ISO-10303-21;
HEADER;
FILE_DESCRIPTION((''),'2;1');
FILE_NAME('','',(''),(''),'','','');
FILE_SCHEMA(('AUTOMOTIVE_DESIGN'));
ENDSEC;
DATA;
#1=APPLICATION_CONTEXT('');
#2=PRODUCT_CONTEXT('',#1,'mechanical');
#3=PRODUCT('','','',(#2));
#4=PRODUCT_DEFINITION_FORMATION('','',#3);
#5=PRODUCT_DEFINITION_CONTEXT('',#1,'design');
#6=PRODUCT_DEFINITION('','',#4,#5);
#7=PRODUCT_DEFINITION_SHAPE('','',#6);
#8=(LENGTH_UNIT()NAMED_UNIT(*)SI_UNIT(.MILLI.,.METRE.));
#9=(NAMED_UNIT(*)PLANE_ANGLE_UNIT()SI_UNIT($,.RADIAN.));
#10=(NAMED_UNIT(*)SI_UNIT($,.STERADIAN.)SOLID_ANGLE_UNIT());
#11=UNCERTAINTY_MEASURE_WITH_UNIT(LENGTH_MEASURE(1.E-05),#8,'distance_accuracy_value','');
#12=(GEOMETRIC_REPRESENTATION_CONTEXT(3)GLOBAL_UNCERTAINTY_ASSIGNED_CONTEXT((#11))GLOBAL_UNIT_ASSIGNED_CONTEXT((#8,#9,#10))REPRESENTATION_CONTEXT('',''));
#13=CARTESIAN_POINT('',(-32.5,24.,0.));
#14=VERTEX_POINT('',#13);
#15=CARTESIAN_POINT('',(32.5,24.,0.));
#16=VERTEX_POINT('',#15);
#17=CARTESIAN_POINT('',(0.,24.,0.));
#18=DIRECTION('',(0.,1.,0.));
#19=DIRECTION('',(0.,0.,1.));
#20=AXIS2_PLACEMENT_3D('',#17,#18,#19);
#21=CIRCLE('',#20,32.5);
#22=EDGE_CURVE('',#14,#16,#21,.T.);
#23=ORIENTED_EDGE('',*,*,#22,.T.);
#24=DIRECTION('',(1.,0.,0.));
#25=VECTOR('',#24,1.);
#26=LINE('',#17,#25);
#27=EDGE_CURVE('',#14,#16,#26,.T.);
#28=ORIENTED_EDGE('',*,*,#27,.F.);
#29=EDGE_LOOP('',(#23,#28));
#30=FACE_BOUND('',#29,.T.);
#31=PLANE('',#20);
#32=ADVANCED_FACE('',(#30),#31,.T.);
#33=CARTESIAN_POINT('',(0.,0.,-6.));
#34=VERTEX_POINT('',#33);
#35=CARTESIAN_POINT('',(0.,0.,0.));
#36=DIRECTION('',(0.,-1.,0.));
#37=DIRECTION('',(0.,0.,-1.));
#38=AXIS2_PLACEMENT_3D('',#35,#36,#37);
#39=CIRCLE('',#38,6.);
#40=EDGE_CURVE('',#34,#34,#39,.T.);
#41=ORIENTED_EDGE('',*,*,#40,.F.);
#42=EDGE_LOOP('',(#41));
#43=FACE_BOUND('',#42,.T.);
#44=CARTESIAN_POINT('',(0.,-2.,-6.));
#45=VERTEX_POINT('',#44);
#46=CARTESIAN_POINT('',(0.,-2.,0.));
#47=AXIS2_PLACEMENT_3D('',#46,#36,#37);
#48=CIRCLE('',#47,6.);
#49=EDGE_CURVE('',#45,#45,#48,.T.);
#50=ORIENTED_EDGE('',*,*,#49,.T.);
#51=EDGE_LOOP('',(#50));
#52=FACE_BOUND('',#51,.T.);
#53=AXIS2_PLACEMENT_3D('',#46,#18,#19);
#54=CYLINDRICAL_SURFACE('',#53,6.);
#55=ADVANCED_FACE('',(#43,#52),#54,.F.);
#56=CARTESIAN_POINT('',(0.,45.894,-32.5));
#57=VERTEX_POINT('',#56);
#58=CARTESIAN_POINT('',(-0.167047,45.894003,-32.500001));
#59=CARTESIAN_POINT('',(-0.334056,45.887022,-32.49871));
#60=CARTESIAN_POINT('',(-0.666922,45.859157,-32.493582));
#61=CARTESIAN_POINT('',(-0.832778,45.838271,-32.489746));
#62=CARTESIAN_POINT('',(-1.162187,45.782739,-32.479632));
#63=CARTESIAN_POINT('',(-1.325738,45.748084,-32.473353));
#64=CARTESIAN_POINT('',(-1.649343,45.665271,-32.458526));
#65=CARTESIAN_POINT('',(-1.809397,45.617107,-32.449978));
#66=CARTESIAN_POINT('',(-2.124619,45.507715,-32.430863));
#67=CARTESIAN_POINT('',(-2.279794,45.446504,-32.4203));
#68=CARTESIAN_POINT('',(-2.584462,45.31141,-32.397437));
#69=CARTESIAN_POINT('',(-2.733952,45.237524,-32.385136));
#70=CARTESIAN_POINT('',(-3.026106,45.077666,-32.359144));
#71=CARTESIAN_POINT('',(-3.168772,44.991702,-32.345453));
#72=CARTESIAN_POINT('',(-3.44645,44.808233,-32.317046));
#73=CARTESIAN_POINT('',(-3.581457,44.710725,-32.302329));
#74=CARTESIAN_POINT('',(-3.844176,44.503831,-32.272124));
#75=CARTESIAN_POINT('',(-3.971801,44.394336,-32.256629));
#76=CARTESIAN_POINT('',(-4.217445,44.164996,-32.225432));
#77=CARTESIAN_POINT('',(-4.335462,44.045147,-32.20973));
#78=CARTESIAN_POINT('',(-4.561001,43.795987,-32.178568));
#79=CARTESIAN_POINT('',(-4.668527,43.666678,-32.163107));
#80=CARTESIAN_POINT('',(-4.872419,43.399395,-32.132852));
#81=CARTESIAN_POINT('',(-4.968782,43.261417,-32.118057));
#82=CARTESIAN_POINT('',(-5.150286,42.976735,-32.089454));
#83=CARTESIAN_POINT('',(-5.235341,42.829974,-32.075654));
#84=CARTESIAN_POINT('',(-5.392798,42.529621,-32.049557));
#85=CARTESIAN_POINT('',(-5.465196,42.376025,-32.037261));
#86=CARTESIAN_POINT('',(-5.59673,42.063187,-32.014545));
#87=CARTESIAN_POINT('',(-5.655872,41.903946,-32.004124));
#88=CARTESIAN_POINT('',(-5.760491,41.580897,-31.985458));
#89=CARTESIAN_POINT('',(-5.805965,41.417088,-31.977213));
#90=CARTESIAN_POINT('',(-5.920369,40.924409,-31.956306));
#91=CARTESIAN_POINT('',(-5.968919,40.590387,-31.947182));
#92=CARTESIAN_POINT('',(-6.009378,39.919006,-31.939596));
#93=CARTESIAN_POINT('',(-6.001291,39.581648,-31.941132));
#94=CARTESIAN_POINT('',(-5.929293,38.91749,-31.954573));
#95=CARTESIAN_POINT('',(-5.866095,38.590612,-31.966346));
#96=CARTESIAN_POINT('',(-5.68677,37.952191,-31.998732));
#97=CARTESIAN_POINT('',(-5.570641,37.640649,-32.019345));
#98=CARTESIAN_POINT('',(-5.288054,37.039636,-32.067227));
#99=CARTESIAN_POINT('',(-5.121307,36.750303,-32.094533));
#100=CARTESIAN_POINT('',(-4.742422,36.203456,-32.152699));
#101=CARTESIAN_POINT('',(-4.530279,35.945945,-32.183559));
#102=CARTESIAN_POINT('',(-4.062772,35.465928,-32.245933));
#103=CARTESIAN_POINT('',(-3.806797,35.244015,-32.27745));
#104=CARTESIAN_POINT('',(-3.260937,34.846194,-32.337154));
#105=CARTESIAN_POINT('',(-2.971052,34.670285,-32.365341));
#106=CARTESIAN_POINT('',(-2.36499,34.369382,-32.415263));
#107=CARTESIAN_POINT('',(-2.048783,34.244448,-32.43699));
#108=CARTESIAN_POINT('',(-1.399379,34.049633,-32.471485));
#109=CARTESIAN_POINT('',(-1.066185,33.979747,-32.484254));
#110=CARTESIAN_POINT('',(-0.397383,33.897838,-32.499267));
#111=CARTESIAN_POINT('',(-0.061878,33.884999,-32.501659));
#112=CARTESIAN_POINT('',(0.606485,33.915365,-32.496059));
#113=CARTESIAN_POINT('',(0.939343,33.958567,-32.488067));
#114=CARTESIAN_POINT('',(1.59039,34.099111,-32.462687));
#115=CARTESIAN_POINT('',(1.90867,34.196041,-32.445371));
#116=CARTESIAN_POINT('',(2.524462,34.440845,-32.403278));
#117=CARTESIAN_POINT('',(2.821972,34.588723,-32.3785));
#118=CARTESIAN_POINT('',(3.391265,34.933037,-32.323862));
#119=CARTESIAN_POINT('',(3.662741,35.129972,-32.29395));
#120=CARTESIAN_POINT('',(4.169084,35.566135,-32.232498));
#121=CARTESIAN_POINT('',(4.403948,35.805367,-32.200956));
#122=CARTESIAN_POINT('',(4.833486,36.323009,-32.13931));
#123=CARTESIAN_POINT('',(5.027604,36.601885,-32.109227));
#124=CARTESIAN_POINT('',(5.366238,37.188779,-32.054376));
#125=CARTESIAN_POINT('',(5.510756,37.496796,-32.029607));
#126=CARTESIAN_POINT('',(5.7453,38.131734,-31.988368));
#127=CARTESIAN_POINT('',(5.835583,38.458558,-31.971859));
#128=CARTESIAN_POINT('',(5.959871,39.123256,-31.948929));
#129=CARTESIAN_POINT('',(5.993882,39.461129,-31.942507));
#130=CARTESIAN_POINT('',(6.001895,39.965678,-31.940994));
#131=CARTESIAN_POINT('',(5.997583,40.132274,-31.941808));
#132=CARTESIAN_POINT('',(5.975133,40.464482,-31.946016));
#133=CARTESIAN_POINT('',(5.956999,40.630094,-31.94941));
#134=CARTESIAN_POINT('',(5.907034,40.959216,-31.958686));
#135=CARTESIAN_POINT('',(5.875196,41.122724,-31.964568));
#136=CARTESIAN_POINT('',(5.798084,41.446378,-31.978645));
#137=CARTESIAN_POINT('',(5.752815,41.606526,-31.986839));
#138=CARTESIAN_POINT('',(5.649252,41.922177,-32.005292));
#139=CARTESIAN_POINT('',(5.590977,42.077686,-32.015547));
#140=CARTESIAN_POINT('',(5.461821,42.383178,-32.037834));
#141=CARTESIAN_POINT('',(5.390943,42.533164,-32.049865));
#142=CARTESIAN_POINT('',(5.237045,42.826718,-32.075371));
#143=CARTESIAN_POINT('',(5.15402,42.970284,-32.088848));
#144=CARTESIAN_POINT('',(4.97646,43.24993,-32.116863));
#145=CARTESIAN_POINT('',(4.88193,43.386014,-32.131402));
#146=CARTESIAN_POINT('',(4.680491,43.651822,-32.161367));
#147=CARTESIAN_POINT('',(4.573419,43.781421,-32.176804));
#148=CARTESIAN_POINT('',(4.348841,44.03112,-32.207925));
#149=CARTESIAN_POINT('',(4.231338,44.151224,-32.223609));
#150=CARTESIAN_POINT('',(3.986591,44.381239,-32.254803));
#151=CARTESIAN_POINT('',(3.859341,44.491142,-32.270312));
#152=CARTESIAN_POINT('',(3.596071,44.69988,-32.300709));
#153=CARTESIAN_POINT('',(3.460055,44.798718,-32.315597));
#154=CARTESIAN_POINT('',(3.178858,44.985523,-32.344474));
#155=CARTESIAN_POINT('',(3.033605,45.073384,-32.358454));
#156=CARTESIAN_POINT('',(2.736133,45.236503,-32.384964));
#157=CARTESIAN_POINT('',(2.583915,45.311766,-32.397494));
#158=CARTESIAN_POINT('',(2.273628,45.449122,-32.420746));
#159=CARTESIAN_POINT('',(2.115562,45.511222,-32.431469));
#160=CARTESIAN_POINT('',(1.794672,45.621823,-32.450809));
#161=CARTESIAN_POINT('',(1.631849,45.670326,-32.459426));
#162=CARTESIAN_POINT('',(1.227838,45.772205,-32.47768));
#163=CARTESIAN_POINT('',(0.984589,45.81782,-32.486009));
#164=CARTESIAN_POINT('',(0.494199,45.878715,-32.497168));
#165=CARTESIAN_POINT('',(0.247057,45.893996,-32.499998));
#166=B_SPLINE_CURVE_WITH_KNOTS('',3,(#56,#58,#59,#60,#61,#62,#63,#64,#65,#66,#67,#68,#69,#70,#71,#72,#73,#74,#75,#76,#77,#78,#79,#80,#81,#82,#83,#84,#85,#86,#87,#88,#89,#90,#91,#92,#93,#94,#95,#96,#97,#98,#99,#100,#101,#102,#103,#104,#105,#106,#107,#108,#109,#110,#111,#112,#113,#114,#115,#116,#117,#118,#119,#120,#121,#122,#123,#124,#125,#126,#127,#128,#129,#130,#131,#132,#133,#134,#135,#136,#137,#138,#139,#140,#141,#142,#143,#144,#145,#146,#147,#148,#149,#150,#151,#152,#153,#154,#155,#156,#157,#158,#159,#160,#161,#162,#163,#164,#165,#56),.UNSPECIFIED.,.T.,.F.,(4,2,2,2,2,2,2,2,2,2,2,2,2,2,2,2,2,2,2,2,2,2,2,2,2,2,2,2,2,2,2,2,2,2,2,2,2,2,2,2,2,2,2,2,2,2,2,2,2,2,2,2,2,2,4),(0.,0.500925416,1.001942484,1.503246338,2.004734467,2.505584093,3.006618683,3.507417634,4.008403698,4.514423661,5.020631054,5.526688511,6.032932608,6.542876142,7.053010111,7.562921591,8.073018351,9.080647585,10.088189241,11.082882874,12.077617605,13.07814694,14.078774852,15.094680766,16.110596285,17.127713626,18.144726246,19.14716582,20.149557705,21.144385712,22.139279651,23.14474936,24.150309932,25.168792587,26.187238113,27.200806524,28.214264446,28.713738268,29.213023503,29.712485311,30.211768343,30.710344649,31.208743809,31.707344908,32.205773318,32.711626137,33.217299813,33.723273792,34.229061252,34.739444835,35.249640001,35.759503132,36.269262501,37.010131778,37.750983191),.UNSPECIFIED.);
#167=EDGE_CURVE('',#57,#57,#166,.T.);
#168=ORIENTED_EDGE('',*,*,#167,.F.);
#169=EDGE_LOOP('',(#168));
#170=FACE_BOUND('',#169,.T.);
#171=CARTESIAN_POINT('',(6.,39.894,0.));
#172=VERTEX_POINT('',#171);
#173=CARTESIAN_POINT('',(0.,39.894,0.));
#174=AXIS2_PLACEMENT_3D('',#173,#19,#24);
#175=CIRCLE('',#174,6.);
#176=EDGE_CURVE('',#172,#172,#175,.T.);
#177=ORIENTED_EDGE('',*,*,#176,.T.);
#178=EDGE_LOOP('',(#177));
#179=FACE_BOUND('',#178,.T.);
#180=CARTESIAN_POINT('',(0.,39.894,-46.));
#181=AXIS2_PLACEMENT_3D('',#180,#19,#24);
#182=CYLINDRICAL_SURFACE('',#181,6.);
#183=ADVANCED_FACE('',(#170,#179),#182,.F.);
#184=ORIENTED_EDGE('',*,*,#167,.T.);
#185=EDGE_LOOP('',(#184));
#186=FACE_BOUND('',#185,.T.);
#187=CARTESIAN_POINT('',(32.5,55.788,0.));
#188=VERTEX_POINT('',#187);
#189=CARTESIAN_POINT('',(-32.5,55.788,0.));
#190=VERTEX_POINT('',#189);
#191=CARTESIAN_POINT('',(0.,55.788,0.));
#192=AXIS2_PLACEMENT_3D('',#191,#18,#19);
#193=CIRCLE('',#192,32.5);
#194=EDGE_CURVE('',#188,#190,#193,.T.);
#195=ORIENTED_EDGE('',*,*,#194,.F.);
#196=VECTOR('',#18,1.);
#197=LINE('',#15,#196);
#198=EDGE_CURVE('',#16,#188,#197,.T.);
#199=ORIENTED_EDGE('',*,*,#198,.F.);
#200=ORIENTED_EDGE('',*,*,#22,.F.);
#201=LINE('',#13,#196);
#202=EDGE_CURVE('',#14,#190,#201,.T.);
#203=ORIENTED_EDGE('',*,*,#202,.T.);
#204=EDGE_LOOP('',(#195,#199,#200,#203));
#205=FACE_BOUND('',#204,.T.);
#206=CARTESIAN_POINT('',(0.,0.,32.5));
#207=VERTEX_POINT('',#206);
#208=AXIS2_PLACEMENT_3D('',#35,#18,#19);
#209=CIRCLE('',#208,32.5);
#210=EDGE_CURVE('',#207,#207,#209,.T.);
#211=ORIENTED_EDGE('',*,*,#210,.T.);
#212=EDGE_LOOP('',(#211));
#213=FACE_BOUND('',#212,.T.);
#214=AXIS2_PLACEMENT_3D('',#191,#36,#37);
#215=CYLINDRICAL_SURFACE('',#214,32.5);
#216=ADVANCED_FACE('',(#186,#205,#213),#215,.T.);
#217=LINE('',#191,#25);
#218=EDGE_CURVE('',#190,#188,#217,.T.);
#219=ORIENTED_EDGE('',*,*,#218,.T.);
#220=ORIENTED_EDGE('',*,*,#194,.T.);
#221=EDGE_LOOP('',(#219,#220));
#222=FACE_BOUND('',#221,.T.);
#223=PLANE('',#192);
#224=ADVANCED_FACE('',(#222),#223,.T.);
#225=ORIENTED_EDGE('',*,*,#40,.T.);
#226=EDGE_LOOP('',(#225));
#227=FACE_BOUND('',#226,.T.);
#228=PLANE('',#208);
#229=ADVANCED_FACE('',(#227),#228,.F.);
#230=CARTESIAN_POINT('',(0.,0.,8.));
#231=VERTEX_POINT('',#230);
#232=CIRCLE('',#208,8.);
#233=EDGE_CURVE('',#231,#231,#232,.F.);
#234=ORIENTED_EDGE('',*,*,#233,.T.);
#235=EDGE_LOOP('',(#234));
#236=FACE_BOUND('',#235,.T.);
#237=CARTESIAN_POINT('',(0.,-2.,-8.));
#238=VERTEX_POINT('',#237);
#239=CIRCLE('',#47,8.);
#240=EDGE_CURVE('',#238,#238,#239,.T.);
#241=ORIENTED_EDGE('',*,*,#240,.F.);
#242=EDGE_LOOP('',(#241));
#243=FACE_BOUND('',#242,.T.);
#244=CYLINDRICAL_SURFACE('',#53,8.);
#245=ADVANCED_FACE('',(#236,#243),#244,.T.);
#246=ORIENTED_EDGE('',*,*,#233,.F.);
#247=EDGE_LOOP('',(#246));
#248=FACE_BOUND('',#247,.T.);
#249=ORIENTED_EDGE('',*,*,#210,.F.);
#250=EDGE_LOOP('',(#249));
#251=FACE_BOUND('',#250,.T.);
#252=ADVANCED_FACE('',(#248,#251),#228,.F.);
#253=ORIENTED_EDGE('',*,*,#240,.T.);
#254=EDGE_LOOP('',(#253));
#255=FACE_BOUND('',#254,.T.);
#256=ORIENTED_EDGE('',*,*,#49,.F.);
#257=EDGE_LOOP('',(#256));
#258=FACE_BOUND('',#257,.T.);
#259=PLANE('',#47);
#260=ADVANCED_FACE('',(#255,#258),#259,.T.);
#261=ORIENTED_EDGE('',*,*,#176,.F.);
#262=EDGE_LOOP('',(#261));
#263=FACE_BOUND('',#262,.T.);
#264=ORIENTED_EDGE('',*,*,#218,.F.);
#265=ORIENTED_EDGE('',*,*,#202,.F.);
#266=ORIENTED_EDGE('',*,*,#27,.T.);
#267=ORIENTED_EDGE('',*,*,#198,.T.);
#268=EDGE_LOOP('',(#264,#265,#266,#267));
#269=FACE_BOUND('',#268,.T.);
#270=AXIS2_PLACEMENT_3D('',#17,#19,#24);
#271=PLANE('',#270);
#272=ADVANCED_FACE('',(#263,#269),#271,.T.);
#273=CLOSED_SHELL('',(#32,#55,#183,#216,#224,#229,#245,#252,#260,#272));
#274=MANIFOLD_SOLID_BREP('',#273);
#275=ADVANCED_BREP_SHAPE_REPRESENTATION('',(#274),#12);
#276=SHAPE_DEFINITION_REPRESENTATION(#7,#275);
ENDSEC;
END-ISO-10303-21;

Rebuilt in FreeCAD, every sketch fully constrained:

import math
import FreeCAD as App
import Part
import Sketcher

V = App.Vector

doc = App.newDocument("Part")
body = doc.addObject("PartDesign::Body", "Body")

sketch1 = body.newObject("Sketcher::SketchObject", "Sketch")
sketch1.AttachmentSupport = (doc.getObject("XZ_Plane"), [""])
sketch1.MapMode = "FlatFace"
sketch1.addGeometry(Part.Circle(V(0, 0, 0), V(0, 0, 1), 32), False)
sketch1.addConstraint(Sketcher.Constraint("Coincident", 0, 3, -1, 1))
sketch1.addConstraint(Sketcher.Constraint("Diameter", 0, 65.0))
pad1 = body.newObject("PartDesign::Pad", "Pad")
pad1.Profile = sketch1
pad1.Length = 55.788
pad1.Reversed = True

sketch2 = body.newObject("Sketcher::SketchObject", "Sketch001")
sketch2.AttachmentSupport = (doc.getObject("XZ_Plane"), [""])
sketch2.MapMode = "FlatFace"
sketch2.AttachmentOffset = App.Placement(V(0, 0, -55.788), App.Rotation())
sketch2.addGeometry(Part.LineSegment(V(32, 0, 0), V(-32, 0, 0)), False)
sketch2.addGeometry(Part.ArcOfCircle(Part.Circle(V(0, 0, 0), V(0, 0, 1), 32), math.radians(0), math.radians(180)), False)
sketch2.addConstraint(Sketcher.Constraint("Coincident", 0, 1, 1, 1))
sketch2.addConstraint(Sketcher.Constraint("Coincident", 1, 2, 0, 2))
sketch2.addConstraint(Sketcher.Constraint("Horizontal", 0))
sketch2.addConstraint(Sketcher.Constraint("Coincident", 1, 3, -1, 1))
sketch2.addConstraint(Sketcher.Constraint("PointOnObject", 0, 1, -1))
sketch2.addConstraint(Sketcher.Constraint("Radius", 1, 32.5))
pocket1 = body.newObject("PartDesign::Pocket", "Pocket")
pocket1.Profile = sketch2
pocket1.Length = 31.788
pocket1.Reversed = True

sketch3 = body.newObject("Sketcher::SketchObject", "Sketch002")
sketch3.AttachmentSupport = (doc.getObject("XZ_Plane"), [""])
sketch3.MapMode = "FlatFace"
sketch3.addGeometry(Part.Circle(V(0, 0, 0), V(0, 0, 1), 8), False)
sketch3.addGeometry(Part.Circle(V(0, 0, 0), V(0, 0, 1), 6), False)
sketch3.addConstraint(Sketcher.Constraint("Coincident", 0, 3, -1, 1))
sketch3.addConstraint(Sketcher.Constraint("Coincident", 1, 3, -1, 1))
sketch3.addConstraint(Sketcher.Constraint("Diameter", 0, 16.0))
sketch3.addConstraint(Sketcher.Constraint("Diameter", 1, 12.0))
pad2 = body.newObject("PartDesign::Pad", "Pad001")
pad2.Profile = sketch3
pad2.Length = 2

sketch4 = body.newObject("Sketcher::SketchObject", "Sketch003")
sketch4.AttachmentSupport = (doc.getObject("XY_Plane"), [""])
sketch4.MapMode = "FlatFace"
sketch4.addGeometry(Part.Circle(V(0, 40, 0), V(0, 0, 1), 6), False)
sketch4.addConstraint(Sketcher.Constraint("PointOnObject", 0, 3, -2))
sketch4.addConstraint(Sketcher.Constraint("Diameter", 0, 12.0))
sketch4.addConstraint(Sketcher.Constraint("DistanceY", -1, 1, 0, 3, 39.894))
pocket2 = body.newObject("PartDesign::Pocket", "Pocket001")
pocket2.Profile = sketch4
pocket2.Length = 46

doc.recompute()
